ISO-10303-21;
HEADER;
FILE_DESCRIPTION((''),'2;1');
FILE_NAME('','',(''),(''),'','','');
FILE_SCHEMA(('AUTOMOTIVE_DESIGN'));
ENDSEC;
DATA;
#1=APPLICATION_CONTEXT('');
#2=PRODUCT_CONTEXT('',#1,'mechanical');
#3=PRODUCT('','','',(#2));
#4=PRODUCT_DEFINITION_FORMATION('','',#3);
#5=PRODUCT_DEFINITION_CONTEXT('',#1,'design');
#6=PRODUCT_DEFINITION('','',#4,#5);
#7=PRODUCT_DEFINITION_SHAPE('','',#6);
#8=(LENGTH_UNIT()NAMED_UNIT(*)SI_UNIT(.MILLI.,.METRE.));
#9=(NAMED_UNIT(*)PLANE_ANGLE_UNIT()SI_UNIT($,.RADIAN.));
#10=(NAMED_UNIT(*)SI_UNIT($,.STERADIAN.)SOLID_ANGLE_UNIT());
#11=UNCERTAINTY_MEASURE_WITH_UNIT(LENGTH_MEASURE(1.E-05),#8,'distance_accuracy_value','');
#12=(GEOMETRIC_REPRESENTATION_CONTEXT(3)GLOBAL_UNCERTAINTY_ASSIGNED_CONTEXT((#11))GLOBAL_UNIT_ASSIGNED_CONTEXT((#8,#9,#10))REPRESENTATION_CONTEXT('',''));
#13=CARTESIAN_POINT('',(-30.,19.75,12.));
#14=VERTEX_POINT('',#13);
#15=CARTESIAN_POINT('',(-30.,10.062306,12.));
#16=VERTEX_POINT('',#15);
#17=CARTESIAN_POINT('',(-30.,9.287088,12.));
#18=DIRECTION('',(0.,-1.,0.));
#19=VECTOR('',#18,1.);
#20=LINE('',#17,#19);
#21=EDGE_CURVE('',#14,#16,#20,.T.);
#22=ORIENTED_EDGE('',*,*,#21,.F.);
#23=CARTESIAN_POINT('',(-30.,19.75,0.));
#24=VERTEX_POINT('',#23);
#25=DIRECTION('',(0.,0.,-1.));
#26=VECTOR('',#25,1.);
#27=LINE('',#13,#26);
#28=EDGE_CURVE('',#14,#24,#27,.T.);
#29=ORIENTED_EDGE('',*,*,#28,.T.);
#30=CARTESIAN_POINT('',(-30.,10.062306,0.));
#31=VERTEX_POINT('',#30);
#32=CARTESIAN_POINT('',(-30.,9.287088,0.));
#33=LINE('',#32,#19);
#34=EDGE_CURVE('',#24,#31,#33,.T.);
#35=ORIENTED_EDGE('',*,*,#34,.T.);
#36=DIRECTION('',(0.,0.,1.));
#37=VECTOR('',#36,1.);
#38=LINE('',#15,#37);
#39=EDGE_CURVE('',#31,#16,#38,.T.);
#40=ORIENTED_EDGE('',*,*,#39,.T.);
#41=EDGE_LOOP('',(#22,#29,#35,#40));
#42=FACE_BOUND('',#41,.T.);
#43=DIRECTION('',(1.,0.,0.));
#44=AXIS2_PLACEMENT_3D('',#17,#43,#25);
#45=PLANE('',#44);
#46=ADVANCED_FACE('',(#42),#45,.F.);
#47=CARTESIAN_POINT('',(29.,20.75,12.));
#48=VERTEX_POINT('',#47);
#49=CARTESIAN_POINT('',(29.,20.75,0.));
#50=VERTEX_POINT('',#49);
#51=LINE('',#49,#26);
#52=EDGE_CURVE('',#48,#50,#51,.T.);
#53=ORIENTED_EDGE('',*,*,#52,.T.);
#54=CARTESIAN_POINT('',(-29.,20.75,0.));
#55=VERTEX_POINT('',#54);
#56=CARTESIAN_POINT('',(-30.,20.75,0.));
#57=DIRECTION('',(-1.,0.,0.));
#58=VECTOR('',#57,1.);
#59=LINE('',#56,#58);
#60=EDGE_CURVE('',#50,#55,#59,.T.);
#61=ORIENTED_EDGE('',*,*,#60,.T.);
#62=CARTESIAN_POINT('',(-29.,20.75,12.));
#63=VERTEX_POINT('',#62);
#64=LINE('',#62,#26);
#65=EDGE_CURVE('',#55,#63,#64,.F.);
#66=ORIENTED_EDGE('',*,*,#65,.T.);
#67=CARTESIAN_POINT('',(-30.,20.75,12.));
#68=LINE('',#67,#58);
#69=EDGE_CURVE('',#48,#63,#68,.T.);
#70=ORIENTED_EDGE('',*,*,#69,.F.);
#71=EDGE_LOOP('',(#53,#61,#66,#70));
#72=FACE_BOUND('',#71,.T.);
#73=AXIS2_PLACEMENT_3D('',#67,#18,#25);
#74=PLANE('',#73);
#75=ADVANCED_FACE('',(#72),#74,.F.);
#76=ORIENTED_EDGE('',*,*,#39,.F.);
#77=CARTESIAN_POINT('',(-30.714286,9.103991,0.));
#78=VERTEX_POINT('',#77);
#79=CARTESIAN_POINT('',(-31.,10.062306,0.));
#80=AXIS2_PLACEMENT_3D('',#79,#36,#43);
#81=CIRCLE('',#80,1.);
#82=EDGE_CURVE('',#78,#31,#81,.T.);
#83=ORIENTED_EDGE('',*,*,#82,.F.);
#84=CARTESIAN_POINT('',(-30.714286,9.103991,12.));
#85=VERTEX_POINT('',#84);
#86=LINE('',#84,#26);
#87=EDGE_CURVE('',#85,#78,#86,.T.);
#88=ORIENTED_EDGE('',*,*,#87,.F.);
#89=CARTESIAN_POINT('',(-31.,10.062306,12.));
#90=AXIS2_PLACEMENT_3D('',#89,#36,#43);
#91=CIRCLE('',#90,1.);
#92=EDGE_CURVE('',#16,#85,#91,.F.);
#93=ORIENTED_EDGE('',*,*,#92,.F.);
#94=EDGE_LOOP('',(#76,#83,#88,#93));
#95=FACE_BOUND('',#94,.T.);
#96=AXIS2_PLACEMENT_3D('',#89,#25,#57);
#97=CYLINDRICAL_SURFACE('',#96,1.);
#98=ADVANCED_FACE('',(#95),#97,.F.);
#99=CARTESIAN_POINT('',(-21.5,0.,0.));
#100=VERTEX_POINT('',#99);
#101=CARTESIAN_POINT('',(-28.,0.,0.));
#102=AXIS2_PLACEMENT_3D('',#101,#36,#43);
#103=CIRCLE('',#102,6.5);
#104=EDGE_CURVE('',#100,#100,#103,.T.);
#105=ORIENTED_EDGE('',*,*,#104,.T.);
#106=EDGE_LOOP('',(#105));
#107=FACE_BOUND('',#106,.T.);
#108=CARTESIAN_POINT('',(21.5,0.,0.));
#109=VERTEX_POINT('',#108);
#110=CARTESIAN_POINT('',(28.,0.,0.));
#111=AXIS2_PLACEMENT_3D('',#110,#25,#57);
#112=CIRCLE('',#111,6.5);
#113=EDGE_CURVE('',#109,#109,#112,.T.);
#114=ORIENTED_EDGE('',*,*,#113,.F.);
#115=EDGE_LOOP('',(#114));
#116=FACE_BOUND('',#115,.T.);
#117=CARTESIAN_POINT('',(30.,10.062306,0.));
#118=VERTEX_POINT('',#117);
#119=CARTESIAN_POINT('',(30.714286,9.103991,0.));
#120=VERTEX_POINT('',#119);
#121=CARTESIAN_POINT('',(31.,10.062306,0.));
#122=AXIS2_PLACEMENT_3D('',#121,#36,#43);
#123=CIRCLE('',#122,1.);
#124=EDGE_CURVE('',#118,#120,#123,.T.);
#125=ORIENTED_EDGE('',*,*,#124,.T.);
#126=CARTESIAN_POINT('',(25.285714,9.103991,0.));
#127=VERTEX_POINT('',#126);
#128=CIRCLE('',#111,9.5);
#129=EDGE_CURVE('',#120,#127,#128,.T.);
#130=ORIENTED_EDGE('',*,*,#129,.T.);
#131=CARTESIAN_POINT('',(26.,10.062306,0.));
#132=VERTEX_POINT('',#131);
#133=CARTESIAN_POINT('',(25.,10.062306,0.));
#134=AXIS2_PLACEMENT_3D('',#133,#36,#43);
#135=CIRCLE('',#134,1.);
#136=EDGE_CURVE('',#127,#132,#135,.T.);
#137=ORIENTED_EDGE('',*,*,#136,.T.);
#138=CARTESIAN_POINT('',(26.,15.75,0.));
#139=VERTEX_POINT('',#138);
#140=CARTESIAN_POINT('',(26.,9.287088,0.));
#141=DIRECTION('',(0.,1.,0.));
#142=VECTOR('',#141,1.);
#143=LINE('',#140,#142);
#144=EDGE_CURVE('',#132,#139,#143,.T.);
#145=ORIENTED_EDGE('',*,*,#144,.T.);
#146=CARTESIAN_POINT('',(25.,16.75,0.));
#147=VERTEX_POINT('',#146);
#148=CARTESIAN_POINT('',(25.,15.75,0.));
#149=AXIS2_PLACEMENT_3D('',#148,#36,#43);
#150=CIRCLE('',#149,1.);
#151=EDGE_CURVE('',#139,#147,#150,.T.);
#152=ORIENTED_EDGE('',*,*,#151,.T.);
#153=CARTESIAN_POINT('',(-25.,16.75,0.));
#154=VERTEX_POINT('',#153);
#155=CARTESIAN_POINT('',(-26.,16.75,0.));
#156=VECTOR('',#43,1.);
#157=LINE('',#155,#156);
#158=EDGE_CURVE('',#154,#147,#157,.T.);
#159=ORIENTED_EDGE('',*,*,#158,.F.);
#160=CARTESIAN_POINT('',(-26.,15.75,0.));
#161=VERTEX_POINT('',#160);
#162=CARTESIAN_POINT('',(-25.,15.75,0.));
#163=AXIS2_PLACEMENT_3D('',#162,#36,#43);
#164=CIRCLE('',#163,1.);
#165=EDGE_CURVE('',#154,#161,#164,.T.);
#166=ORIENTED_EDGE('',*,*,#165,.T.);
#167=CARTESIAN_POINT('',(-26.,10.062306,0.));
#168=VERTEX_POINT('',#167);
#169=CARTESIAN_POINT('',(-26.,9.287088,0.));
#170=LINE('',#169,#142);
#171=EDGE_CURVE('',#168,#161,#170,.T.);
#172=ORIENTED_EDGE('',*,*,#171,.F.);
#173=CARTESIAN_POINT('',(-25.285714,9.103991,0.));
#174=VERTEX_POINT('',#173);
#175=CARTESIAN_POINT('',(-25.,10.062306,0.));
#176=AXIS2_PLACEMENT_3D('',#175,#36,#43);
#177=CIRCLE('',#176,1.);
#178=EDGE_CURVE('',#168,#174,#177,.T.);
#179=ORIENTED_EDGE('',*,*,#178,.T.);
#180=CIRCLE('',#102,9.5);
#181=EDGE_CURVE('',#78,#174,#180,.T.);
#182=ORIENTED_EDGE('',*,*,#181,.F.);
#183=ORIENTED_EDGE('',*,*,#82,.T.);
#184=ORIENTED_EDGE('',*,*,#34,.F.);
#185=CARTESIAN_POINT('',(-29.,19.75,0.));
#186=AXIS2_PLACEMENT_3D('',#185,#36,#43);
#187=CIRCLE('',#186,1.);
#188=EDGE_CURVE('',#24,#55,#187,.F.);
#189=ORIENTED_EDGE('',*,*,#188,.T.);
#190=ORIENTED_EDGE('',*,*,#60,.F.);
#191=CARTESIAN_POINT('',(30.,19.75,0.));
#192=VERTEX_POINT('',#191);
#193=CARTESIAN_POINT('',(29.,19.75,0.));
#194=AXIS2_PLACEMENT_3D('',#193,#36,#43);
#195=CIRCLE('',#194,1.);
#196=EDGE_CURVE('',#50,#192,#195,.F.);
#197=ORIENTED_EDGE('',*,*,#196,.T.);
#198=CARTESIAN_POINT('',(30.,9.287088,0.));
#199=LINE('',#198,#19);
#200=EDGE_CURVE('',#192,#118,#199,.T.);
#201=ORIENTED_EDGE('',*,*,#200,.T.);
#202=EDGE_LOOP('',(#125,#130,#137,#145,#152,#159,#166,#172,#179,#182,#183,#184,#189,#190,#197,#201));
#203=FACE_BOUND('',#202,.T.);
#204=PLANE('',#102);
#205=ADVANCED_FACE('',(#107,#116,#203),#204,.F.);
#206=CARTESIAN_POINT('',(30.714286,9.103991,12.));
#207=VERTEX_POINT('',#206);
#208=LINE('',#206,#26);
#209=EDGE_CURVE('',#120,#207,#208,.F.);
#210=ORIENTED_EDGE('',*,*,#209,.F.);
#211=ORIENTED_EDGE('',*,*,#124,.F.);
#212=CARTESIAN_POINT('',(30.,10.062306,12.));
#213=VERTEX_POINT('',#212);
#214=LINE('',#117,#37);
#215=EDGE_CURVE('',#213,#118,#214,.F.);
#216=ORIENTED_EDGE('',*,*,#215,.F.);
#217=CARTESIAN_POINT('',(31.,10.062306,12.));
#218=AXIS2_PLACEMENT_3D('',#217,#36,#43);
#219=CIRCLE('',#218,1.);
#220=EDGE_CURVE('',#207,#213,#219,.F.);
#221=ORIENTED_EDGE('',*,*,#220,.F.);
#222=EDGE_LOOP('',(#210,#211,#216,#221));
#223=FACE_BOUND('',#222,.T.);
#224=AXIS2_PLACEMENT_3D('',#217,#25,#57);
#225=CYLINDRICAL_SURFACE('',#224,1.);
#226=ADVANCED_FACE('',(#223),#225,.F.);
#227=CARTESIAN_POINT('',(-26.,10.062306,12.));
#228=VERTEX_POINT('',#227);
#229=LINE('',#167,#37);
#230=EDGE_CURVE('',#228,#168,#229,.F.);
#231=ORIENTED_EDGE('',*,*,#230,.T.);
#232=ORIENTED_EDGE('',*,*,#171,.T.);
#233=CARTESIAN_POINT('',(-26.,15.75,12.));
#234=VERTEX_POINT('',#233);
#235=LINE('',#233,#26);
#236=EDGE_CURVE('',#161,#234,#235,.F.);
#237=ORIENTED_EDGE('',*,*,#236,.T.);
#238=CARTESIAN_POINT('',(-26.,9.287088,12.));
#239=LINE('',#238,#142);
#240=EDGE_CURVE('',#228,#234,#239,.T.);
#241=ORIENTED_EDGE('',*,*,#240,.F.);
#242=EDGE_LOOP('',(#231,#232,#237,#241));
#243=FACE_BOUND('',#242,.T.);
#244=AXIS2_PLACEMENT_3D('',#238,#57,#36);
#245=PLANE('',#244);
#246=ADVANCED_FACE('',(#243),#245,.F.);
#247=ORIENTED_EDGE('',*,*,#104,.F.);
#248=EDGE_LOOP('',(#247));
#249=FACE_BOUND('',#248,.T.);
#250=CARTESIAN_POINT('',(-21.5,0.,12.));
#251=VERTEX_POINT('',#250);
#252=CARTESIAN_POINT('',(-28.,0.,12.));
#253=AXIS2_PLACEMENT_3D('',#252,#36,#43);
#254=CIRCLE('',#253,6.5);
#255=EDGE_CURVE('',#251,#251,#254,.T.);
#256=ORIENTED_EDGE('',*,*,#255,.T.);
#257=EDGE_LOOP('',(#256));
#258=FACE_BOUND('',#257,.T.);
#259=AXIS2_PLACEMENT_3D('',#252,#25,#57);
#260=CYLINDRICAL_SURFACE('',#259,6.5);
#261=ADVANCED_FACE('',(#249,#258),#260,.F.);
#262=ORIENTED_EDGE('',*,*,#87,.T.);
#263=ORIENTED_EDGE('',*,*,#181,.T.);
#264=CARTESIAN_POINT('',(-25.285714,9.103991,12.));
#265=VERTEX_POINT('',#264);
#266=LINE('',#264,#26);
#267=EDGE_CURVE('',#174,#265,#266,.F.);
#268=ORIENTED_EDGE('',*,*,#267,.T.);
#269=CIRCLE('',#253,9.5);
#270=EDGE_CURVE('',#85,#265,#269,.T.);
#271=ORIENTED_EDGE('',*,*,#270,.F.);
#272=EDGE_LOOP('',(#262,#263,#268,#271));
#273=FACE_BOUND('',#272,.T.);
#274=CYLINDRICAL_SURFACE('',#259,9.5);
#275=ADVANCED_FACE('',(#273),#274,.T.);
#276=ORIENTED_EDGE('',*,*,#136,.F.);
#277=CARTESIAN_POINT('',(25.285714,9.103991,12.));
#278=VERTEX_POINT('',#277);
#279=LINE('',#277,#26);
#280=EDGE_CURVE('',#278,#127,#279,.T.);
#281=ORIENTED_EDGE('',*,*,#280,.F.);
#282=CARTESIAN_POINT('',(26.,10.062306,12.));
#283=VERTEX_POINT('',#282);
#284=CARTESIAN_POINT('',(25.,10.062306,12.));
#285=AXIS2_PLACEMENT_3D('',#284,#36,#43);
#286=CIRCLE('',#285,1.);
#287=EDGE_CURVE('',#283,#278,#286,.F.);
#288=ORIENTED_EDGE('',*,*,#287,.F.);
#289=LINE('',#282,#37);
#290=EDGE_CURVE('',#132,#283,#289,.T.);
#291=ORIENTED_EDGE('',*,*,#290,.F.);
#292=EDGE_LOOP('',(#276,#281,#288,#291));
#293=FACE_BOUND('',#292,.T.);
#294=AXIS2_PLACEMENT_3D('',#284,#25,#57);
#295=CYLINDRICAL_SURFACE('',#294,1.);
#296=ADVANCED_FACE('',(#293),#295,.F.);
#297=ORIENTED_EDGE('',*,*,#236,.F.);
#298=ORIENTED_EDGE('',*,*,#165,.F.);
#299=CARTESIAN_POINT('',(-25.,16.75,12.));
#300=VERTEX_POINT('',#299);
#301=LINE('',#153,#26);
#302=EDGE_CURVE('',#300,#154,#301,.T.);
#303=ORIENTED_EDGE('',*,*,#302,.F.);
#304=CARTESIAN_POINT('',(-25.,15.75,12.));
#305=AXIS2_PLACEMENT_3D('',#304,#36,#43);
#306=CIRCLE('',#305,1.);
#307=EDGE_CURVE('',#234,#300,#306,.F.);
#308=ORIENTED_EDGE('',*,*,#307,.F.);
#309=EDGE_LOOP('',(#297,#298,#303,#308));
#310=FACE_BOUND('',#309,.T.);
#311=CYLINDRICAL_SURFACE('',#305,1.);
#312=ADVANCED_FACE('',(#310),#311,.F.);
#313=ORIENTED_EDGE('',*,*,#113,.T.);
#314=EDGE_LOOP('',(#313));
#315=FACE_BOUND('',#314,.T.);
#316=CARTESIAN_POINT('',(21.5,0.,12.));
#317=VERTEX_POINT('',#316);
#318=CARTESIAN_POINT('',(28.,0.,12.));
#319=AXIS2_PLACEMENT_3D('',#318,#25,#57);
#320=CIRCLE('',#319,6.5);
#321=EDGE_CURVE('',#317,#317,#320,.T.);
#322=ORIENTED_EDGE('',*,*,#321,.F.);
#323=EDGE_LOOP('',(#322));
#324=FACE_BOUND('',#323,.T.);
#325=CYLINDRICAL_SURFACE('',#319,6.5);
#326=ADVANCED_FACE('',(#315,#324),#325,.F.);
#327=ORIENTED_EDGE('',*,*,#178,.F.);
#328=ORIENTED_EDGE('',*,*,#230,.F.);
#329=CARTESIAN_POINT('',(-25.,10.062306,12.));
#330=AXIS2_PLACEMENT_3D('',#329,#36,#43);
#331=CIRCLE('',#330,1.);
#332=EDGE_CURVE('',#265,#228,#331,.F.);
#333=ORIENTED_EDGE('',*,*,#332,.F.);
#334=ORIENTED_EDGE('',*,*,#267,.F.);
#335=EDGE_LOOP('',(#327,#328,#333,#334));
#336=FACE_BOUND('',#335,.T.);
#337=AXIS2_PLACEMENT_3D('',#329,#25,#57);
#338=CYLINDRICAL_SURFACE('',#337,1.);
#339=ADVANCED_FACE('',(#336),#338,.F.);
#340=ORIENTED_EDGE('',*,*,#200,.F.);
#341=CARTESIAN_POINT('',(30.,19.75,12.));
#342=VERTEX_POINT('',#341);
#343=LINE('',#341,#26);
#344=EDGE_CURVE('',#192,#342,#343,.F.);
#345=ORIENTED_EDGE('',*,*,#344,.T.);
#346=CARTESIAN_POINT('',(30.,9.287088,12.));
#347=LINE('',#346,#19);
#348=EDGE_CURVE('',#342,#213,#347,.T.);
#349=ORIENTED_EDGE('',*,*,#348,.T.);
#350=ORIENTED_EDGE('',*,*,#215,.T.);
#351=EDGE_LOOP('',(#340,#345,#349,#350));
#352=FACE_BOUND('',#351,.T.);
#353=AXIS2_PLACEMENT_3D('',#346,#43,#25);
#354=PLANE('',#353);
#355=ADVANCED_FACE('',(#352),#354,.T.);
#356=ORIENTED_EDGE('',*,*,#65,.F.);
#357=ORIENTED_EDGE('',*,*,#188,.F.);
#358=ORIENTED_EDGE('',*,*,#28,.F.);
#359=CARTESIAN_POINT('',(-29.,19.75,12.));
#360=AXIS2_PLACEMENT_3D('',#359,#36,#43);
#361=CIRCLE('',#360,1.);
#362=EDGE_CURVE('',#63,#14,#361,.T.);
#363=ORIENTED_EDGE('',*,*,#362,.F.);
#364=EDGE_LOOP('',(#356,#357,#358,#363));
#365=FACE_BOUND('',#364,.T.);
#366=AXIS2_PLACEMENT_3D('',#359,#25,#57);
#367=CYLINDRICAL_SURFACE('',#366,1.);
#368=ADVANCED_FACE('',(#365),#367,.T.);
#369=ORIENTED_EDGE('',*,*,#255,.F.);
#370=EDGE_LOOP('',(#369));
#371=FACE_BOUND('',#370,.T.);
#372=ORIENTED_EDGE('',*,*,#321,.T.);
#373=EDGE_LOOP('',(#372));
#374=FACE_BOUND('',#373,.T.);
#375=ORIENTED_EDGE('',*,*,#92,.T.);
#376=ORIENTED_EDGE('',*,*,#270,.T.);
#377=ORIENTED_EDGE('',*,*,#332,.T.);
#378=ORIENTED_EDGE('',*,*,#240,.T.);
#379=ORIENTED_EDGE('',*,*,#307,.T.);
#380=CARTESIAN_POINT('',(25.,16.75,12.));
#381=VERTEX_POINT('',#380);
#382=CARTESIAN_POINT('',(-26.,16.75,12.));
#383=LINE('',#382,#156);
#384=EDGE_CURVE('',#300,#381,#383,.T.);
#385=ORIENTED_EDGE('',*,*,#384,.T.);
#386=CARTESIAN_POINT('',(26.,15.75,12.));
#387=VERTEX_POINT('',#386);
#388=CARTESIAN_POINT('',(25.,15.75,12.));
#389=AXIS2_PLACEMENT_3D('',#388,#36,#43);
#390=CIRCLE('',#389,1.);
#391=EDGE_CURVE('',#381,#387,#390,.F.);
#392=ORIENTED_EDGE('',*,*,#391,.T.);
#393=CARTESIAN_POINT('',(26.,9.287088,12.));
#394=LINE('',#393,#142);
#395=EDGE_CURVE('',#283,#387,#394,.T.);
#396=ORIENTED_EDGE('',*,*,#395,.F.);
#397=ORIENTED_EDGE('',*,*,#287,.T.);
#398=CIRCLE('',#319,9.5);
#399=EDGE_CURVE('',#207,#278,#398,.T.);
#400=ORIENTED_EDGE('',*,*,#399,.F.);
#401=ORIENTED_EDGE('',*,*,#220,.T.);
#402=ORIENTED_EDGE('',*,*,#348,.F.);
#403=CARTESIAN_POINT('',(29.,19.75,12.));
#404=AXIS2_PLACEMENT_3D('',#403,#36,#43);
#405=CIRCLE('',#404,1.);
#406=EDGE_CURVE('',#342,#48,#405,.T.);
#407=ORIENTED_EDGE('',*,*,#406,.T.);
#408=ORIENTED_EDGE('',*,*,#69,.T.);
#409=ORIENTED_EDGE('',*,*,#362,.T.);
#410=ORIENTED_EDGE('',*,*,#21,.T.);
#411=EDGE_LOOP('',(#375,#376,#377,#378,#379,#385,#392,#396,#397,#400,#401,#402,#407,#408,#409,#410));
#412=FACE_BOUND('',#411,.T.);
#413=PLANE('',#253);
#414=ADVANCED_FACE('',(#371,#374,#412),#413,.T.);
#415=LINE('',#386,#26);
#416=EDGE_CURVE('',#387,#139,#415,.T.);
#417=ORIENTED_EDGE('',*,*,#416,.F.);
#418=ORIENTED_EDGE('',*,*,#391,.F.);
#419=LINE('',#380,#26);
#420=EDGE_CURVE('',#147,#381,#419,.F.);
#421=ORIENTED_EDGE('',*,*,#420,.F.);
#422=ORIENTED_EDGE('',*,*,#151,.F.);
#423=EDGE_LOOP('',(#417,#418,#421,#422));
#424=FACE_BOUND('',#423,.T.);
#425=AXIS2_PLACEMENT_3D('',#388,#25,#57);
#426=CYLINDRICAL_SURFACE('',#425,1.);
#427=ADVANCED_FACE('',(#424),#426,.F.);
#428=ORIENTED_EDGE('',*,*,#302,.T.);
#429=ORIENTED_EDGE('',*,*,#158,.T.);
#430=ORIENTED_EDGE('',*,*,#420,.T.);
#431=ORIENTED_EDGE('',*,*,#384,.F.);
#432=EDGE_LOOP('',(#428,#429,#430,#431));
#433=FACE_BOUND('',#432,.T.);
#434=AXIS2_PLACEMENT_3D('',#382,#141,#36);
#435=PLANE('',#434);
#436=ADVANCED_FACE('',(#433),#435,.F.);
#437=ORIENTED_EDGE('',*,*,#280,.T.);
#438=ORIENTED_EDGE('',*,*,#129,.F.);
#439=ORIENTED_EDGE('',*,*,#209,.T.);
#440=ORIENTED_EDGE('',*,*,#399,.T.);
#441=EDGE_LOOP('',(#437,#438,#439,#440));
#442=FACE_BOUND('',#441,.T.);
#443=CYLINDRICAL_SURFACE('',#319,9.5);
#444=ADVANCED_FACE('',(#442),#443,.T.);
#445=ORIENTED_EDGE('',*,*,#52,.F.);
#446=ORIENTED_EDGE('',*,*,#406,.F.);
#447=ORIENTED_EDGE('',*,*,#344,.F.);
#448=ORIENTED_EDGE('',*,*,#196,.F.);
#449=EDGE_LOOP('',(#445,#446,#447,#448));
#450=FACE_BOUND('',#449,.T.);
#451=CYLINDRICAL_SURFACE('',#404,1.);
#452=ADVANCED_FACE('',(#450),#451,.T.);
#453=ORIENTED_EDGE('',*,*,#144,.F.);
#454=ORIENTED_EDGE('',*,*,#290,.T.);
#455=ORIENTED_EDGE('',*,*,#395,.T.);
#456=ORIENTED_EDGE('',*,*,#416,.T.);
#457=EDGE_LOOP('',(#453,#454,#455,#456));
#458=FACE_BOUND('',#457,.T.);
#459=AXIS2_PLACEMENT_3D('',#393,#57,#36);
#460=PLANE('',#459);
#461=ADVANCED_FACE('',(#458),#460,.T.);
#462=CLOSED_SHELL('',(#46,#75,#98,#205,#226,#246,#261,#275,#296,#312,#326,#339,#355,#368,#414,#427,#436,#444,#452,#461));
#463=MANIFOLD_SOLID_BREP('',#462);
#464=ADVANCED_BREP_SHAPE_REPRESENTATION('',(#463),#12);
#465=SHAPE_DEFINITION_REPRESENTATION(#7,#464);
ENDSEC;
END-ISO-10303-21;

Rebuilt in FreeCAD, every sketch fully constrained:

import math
import FreeCAD as App
import Part
import Sketcher
Q = App.Units.Quantity


def edges_at(feature, points):
    """Names of the edges that pass closest to the given points."""
    edges = feature.Shape.Edges
    near = lambda p: min(range(len(edges)), key=lambda i: edges[i].distToShape(Part.Vertex(*p))[0])
    return sorted({f"Edge{near(p) + 1}" for p in points})

doc = App.newDocument("Part")
body = doc.addObject("PartDesign::Body", "Body")

# Sketch on XY plane
sketch1 = body.newObject("Sketcher::SketchObject", "Sketch")
sketch1.AttachmentSupport = (doc.getObject("XY_Plane"), [""])
sketch1.MapMode = "FlatFace"
sketch1.addGeometry(Part.LineSegment(App.Vector(-26, 9.287088, 0), App.Vector(-26, 16.75, 0)), False)
sketch1.addGeometry(Part.LineSegment(App.Vector(-26, 16.75, 0), App.Vector(0, 16.75, 0)), False)
sketch1.addGeometry(Part.LineSegment(App.Vector(0, 16.75, 0), App.Vector(0, 20.75, 0)), False)
sketch1.addGeometry(Part.LineSegment(App.Vector(0, 20.75, 0), App.Vector(-30, 20.75, 0)), False)
sketch1.addGeometry(Part.LineSegment(App.Vector(-30, 20.75, 0), App.Vector(-30, 9.287088, 0)), False)
sketch1.addGeometry(Part.ArcOfCircle(Part.Circle(App.Vector(-28, 0, 0), App.Vector(0, 0, 1), 9.5), math.radians(102.153197), math.radians(437.846803)), False)
sketch1.addGeometry(Part.Circle(App.Vector(-28, 0, 0), App.Vector(0, 0, 1), 6.5), False)
sketch1.addConstraint(Sketcher.Constraint("Coincident", 0, 2, 1, 1))
sketch1.addConstraint(Sketcher.Constraint("Coincident", 1, 2, 2, 1))
sketch1.addConstraint(Sketcher.Constraint("Coincident", 2, 2, 3, 1))
sketch1.addConstraint(Sketcher.Constraint("Coincident", 3, 2, 4, 1))
sketch1.addConstraint(Sketcher.Constraint("Coincident", 4, 2, 5, 1))
sketch1.addConstraint(Sketcher.Constraint("Coincident", 5, 2, 0, 1))
sketch1.addConstraint(Sketcher.Constraint("Vertical", 0))
sketch1.addConstraint(Sketcher.Constraint("Horizontal", 1))
sketch1.addConstraint(Sketcher.Constraint("Vertical", 2))
sketch1.addConstraint(Sketcher.Constraint("Horizontal", 3))
sketch1.addConstraint(Sketcher.Constraint("Vertical", 4))
sketch1.addConstraint(Sketcher.Constraint("Coincident", 6, 3, 5, 3))
sketch1.addConstraint(Sketcher.Constraint("PointOnObject", 5, 3, -1))
sketch1.addConstraint(Sketcher.Constraint("PointOnObject", 1, 2, -2))
sketch1.addConstraint(Sketcher.Constraint("Horizontal", 4, 2, 5, 2))
sketch1.addConstraint(Sketcher.Constraint("Diameter", 6, Q("13 mm")))
sketch1.addConstraint(Sketcher.Constraint("Radius", 5, Q("9.5 mm")))
sketch1.addConstraint(Sketcher.Constraint("DistanceX", 1, 1, 1, 2, Q("26 mm")))
sketch1.addConstraint(Sketcher.Constraint("DistanceX", 3, 2, 3, 1, Q("30 mm")))
sketch1.addConstraint(Sketcher.Constraint("DistanceY", 2, 1, 2, 2, Q("4 mm")))
sketch1.addConstraint(Sketcher.Constraint("DistanceY", -1, 1, 0, 2, Q("16.75 mm")))
pad1 = body.newObject("PartDesign::Pad", "Pad")
pad1.Profile = sketch1
pad1.Length = 12
doc.recompute()

mirrored = body.newObject("PartDesign::Mirrored", "Mirrored")
mirrored.Originals = [pad1]
mirrored.MirrorPlane = (doc.getObject("YZ_Plane"), [""])
body.Tip = mirrored
doc.recompute()

fillet = body.newObject("PartDesign::Fillet", "Fillet")
fillet.Base = (mirrored, edges_at(mirrored, [
    (-30, 9.287, 6),
    (-30, 20.75, 6),
    (-26, 16.75, 6),
    (-26, 9.287, 6),
    (26, 9.287, 6),
    (30, 9.287, 6),
    (30, 20.75, 6),
    (26, 16.75, 6),
]))
fillet.Radius = 1

doc.recompute()
